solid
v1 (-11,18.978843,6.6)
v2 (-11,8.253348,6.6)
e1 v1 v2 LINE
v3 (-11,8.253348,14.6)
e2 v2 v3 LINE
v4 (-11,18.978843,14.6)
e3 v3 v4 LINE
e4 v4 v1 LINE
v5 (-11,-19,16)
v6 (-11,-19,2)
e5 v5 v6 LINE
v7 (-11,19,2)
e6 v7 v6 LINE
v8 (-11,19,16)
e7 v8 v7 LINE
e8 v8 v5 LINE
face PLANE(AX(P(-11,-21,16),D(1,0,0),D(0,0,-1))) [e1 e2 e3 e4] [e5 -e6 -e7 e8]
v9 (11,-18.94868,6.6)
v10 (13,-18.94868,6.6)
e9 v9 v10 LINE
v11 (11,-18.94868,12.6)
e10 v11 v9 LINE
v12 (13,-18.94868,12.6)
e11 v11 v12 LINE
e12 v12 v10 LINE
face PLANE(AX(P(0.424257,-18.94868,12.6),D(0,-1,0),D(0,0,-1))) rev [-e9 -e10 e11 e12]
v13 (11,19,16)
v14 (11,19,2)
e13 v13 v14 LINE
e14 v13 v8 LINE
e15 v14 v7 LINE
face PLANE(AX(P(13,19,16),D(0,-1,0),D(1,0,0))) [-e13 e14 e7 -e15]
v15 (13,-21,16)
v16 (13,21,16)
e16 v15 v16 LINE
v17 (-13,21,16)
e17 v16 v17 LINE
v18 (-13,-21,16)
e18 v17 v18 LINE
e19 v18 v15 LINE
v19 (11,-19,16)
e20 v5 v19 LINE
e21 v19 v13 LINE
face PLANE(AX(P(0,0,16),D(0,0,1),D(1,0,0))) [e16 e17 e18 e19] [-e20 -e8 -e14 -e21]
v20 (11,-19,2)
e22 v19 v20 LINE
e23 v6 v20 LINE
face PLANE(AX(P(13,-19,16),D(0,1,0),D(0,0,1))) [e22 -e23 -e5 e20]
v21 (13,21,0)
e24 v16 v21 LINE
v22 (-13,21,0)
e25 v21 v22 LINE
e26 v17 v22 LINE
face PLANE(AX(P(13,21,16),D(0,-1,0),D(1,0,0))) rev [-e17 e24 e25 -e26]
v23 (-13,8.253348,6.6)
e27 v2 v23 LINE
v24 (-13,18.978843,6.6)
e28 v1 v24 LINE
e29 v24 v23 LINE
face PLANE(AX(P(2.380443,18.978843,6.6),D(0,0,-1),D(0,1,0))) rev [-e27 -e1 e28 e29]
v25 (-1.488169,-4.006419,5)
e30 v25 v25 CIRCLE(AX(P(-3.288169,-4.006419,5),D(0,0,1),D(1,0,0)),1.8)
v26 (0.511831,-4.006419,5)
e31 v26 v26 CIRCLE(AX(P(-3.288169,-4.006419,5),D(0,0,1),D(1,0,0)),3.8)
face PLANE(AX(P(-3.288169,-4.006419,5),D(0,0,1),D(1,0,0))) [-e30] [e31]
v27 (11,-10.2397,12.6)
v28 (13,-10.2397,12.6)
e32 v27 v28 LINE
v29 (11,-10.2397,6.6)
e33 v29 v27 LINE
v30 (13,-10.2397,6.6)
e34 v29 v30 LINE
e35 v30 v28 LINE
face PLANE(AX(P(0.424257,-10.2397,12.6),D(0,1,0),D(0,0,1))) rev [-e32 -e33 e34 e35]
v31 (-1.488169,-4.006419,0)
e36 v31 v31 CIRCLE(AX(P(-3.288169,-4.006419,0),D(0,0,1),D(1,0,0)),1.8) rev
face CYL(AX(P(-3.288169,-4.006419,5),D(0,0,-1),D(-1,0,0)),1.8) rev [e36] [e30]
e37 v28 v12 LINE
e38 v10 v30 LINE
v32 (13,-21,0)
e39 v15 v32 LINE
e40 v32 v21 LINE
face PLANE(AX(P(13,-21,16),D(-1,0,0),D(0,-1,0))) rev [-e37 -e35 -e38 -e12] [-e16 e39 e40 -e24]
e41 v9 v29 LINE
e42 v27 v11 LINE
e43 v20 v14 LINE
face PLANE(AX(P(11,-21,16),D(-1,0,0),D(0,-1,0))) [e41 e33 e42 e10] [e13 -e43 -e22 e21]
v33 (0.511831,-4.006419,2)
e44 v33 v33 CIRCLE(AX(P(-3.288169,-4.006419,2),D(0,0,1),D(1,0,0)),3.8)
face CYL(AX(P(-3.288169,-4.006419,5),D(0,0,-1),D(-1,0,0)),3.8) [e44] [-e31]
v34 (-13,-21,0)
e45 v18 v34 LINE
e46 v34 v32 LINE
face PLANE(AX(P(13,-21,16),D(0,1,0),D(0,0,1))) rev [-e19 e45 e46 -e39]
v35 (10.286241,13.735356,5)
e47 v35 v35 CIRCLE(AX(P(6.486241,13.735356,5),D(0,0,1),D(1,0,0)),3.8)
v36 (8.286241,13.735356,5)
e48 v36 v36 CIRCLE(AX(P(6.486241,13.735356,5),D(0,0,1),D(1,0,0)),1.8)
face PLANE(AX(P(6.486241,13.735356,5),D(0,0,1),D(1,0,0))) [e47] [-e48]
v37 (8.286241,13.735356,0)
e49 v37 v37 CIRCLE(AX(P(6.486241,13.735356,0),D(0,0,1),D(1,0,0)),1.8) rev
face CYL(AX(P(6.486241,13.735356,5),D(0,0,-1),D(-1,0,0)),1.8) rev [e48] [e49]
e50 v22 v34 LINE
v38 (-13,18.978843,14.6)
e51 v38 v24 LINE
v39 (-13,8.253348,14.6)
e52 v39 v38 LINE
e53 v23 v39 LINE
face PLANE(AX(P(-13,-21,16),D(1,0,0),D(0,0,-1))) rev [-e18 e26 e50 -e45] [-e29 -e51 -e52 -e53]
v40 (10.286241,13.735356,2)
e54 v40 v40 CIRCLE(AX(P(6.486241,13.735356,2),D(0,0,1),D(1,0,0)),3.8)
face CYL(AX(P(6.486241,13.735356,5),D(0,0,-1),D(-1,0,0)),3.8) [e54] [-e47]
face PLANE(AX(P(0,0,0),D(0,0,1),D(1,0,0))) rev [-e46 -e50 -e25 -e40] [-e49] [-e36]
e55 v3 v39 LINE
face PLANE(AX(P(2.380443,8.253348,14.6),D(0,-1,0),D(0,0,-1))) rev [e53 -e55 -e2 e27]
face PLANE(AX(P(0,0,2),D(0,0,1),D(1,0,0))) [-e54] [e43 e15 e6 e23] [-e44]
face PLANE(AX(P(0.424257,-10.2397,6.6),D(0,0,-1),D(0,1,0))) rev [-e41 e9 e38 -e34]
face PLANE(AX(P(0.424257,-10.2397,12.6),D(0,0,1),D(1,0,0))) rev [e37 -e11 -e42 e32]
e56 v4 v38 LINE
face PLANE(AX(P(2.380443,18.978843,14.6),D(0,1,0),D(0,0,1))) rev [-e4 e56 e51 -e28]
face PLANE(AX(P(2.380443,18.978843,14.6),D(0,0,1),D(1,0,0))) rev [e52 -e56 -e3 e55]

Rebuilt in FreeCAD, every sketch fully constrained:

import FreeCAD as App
import Part
import Sketcher
from FreeCAD import Vector
Q = App.Units.Quantity


def faces_at(feature, points):
    """Names of the faces that lie closest to the given points."""
    faces = feature.Shape.Faces
    near = lambda p: min(range(len(faces)), key=lambda i: faces[i].distToShape(Part.Vertex(*p))[0])
    return sorted({f"Face{near(p) + 1}" for p in points})

doc = App.newDocument("Part")
body = doc.addObject("PartDesign::Body", "Body")

sketch1 = doc.addObject("Sketcher::SketchObject", "Sketch")
body.addObject(sketch1)
sketch1.AttachmentSupport = (doc.XY_Plane, [""])
sketch1.MapMode = "FlatFace"
sketch1.addGeometry([
    Part.LineSegment(Vector(-13, 21, 0), Vector(-13, -21, 0)),
    Part.LineSegment(Vector(-13, -21, 0), Vector(13, -21, 0)),
    Part.LineSegment(Vector(13, -21, 0), Vector(13, 21, 0)),
    Part.LineSegment(Vector(13, 21, 0), Vector(-13, 21, 0)),
], False)
sketch1.addConstraint([
    Sketcher.Constraint("Coincident", 0, 2, 1, 1),
    Sketcher.Constraint("Coincident", 1, 2, 2, 1),
    Sketcher.Constraint("Coincident", 2, 2, 3, 1),
    Sketcher.Constraint("Coincident", 3, 2, 0, 1),
    Sketcher.Constraint("Vertical", 0),
    Sketcher.Constraint("Horizontal", 1),
    Sketcher.Constraint("Vertical", 2),
    Sketcher.Constraint("Horizontal", 3),
    Sketcher.Constraint("Symmetric", 0, 2, 2, 2, -1, 1),
    Sketcher.Constraint("DistanceX", 1, 1, 1, 2, Q("26 mm")),
    Sketcher.Constraint("DistanceY", 0, 2, 0, 1, Q("42 mm")),
])
pad1 = doc.addObject("PartDesign::Pad", "Pad")
body.addObject(pad1)
pad1.Profile = sketch1
pad1.Length = 16
doc.recompute()

thickness = doc.addObject("PartDesign::Thickness", "Thickness")
body.addObject(thickness)
thickness.Base = (pad1, faces_at(pad1, [(0, 0, 16)]))
thickness.Value = 2
thickness.Reversed = True
thickness.Join = "Intersection"

sketch2 = doc.addObject("Sketcher::SketchObject", "Sketch001")
body.addObject(sketch2)
sketch2.AttachmentSupport = (doc.XY_Plane, [""])
sketch2.MapMode = "FlatFace"
sketch2.AttachmentOffset = App.Placement(Vector(0, 0, 2), App.Rotation())
sketch2.addGeometry([
    Part.Circle(Vector(-3.3, -4, 0), Vector(0, 0, 1), 3.8),
    Part.Circle(Vector(-3.3, -4, 0), Vector(0, 0, 1), 1.8),
    Part.Circle(Vector(6.5, 13.7, 0), Vector(0, 0, 1), 3.8),
    Part.Circle(Vector(6.5, 13.7, 0), Vector(0, 0, 1), 1.8),
], False)
sketch2.addConstraint([
    Sketcher.Constraint("Coincident", 1, 3, 0, 3),
    Sketcher.Constraint("Coincident", 3, 3, 2, 3),
    Sketcher.Constraint("Equal", 0, 2),
    Sketcher.Constraint("Equal", 1, 3),
    Sketcher.Constraint("Diameter", 0, Q("7.6 mm")),
    Sketcher.Constraint("Diameter", 1, Q("3.6 mm")),
    Sketcher.Constraint("DistanceX", 0, 3, -1, 1, Q("3.288169 mm")),
    Sketcher.Constraint("DistanceY", 0, 3, -1, 1, Q("4.006419 mm")),
    Sketcher.Constraint("DistanceX", -1, 1, 2, 3, Q("6.486241 mm")),
    Sketcher.Constraint("DistanceY", -1, 1, 2, 3, Q("13.735356 mm")),
])
pad2 = doc.addObject("PartDesign::Pad", "Pad001")
body.addObject(pad2)
pad2.Profile = sketch2
pad2.Length = 3

sketch3 = doc.addObject("Sketcher::SketchObject", "Sketch002")
body.addObject(sketch3)
sketch3.AttachmentSupport = (doc.XY_Plane, [""])
sketch3.MapMode = "FlatFace"
sketch3.addGeometry([
    Part.Circle(Vector(6.5, 13.7, 0), Vector(0, 0, 1), 1.8),
    Part.Circle(Vector(-3.3, -4, 0), Vector(0, 0, 1), 1.8),
], False)
sketch3.addConstraint([
    Sketcher.Constraint("Equal", 0, 1),
    Sketcher.Constraint("Diameter", 0, Q("3.6 mm")),
    Sketcher.Constraint("DistanceX", -1, 1, 0, 3, Q("6.486241 mm")),
    Sketcher.Constraint("DistanceX", 1, 3, -1, 1, Q("3.288169 mm")),
    Sketcher.Constraint("DistanceY", 1, 3, -1, 1, Q("4.006419 mm")),
    Sketcher.Constraint("DistanceY", -1, 1, 0, 3, Q("13.735356 mm")),
])
pocket1 = doc.addObject("PartDesign::Pocket", "Pocket")
body.addObject(pocket1)
pocket1.Profile = sketch3
pocket1.Length = 2
pocket1.Reversed = True

sketch4 = doc.addObject("Sketcher::SketchObject", "Sketch003")
body.addObject(sketch4)
sketch4.AttachmentSupport = (doc.YZ_Plane, [""])
sketch4.MapMode = "FlatFace"
sketch4.AttachmentOffset = App.Placement(Vector(0, 0, -13), App.Rotation())
sketch4.addGeometry([
    Part.LineSegment(Vector(19, 7, 0), Vector(8, 7, 0)),
    Part.LineSegment(Vector(8, 7, 0), Vector(8, 15, 0)),
    Part.LineSegment(Vector(8, 15, 0), Vector(19, 15, 0)),
    Part.LineSegment(Vector(19, 15, 0), Vector(19, 7, 0)),
], False)
sketch4.addConstraint([
    Sketcher.Constraint("Coincident", 0, 2, 1, 1),
    Sketcher.Constraint("Coincident", 1, 2, 2, 1),
    Sketcher.Constraint("Coincident", 2, 2, 3, 1),
    Sketcher.Constraint("Coincident", 3, 2, 0, 1),
    Sketcher.Constraint("Horizontal", 0),
    Sketcher.Constraint("Vertical", 1),
    Sketcher.Constraint("Horizontal", 2),
    Sketcher.Constraint("Vertical", 3),
    Sketcher.Constraint("DistanceY", 1, 1, 1, 2, Q("8 mm")),
    Sketcher.Constraint("DistanceY", -1, 1, 0, 2, Q("6.6 mm")),
    Sketcher.Constraint("DistanceX", 0, 2, 0, 1, Q("10.725495 mm")),
    Sketcher.Constraint("DistanceX", -1, 1, 0, 2, Q("8.253348 mm")),
])
pocket2 = doc.addObject("PartDesign::Pocket", "Pocket001")
body.addObject(pocket2)
pocket2.Profile = sketch4
pocket2.Length = 2
pocket2.Reversed = True

sketch5 = doc.addObject("Sketcher::SketchObject", "Sketch004")
body.addObject(sketch5)
sketch5.AttachmentSupport = (doc.YZ_Plane, [""])
sketch5.MapMode = "FlatFace"
sketch5.AttachmentOffset = App.Placement(Vector(0, 0, 13), App.Rotation())
sketch5.addGeometry([
    Part.LineSegment(Vector(-10, 13, 0), Vector(-19, 13, 0)),
    Part.LineSegment(Vector(-19, 13, 0), Vector(-19, 7, 0)),
    Part.LineSegment(Vector(-19, 7, 0), Vector(-10, 7, 0)),
    Part.LineSegment(Vector(-10, 7, 0), Vector(-10, 13, 0)),
], False)
sketch5.addConstraint([
    Sketcher.Constraint("Coincident", 0, 2, 1, 1),
    Sketcher.Constraint("Coincident", 1, 2, 2, 1),
    Sketcher.Constraint("Coincident", 2, 2, 3, 1),
    Sketcher.Constraint("Coincident", 3, 2, 0, 1),
    Sketcher.Constraint("Horizontal", 0),
    Sketcher.Constraint("Vertical", 1),
    Sketcher.Constraint("Horizontal", 2),
    Sketcher.Constraint("Vertical", 3),
    Sketcher.Constraint("DistanceY", 1, 2, 1, 1, Q("6 mm")),
    Sketcher.Constraint("DistanceY", -1, 1, 0, 2, Q("12.6 mm")),
    Sketcher.Constraint("DistanceX", 0, 2, 0, 1, Q("8.70898 mm")),
    Sketcher.Constraint("DistanceX", 2, 2, -1, 1, Q("10.2397 mm")),
])
pocket3 = doc.addObject("PartDesign::Pocket", "Pocket002")
body.addObject(pocket3)
pocket3.Profile = sketch5
pocket3.Length = 2

doc.recompute()
